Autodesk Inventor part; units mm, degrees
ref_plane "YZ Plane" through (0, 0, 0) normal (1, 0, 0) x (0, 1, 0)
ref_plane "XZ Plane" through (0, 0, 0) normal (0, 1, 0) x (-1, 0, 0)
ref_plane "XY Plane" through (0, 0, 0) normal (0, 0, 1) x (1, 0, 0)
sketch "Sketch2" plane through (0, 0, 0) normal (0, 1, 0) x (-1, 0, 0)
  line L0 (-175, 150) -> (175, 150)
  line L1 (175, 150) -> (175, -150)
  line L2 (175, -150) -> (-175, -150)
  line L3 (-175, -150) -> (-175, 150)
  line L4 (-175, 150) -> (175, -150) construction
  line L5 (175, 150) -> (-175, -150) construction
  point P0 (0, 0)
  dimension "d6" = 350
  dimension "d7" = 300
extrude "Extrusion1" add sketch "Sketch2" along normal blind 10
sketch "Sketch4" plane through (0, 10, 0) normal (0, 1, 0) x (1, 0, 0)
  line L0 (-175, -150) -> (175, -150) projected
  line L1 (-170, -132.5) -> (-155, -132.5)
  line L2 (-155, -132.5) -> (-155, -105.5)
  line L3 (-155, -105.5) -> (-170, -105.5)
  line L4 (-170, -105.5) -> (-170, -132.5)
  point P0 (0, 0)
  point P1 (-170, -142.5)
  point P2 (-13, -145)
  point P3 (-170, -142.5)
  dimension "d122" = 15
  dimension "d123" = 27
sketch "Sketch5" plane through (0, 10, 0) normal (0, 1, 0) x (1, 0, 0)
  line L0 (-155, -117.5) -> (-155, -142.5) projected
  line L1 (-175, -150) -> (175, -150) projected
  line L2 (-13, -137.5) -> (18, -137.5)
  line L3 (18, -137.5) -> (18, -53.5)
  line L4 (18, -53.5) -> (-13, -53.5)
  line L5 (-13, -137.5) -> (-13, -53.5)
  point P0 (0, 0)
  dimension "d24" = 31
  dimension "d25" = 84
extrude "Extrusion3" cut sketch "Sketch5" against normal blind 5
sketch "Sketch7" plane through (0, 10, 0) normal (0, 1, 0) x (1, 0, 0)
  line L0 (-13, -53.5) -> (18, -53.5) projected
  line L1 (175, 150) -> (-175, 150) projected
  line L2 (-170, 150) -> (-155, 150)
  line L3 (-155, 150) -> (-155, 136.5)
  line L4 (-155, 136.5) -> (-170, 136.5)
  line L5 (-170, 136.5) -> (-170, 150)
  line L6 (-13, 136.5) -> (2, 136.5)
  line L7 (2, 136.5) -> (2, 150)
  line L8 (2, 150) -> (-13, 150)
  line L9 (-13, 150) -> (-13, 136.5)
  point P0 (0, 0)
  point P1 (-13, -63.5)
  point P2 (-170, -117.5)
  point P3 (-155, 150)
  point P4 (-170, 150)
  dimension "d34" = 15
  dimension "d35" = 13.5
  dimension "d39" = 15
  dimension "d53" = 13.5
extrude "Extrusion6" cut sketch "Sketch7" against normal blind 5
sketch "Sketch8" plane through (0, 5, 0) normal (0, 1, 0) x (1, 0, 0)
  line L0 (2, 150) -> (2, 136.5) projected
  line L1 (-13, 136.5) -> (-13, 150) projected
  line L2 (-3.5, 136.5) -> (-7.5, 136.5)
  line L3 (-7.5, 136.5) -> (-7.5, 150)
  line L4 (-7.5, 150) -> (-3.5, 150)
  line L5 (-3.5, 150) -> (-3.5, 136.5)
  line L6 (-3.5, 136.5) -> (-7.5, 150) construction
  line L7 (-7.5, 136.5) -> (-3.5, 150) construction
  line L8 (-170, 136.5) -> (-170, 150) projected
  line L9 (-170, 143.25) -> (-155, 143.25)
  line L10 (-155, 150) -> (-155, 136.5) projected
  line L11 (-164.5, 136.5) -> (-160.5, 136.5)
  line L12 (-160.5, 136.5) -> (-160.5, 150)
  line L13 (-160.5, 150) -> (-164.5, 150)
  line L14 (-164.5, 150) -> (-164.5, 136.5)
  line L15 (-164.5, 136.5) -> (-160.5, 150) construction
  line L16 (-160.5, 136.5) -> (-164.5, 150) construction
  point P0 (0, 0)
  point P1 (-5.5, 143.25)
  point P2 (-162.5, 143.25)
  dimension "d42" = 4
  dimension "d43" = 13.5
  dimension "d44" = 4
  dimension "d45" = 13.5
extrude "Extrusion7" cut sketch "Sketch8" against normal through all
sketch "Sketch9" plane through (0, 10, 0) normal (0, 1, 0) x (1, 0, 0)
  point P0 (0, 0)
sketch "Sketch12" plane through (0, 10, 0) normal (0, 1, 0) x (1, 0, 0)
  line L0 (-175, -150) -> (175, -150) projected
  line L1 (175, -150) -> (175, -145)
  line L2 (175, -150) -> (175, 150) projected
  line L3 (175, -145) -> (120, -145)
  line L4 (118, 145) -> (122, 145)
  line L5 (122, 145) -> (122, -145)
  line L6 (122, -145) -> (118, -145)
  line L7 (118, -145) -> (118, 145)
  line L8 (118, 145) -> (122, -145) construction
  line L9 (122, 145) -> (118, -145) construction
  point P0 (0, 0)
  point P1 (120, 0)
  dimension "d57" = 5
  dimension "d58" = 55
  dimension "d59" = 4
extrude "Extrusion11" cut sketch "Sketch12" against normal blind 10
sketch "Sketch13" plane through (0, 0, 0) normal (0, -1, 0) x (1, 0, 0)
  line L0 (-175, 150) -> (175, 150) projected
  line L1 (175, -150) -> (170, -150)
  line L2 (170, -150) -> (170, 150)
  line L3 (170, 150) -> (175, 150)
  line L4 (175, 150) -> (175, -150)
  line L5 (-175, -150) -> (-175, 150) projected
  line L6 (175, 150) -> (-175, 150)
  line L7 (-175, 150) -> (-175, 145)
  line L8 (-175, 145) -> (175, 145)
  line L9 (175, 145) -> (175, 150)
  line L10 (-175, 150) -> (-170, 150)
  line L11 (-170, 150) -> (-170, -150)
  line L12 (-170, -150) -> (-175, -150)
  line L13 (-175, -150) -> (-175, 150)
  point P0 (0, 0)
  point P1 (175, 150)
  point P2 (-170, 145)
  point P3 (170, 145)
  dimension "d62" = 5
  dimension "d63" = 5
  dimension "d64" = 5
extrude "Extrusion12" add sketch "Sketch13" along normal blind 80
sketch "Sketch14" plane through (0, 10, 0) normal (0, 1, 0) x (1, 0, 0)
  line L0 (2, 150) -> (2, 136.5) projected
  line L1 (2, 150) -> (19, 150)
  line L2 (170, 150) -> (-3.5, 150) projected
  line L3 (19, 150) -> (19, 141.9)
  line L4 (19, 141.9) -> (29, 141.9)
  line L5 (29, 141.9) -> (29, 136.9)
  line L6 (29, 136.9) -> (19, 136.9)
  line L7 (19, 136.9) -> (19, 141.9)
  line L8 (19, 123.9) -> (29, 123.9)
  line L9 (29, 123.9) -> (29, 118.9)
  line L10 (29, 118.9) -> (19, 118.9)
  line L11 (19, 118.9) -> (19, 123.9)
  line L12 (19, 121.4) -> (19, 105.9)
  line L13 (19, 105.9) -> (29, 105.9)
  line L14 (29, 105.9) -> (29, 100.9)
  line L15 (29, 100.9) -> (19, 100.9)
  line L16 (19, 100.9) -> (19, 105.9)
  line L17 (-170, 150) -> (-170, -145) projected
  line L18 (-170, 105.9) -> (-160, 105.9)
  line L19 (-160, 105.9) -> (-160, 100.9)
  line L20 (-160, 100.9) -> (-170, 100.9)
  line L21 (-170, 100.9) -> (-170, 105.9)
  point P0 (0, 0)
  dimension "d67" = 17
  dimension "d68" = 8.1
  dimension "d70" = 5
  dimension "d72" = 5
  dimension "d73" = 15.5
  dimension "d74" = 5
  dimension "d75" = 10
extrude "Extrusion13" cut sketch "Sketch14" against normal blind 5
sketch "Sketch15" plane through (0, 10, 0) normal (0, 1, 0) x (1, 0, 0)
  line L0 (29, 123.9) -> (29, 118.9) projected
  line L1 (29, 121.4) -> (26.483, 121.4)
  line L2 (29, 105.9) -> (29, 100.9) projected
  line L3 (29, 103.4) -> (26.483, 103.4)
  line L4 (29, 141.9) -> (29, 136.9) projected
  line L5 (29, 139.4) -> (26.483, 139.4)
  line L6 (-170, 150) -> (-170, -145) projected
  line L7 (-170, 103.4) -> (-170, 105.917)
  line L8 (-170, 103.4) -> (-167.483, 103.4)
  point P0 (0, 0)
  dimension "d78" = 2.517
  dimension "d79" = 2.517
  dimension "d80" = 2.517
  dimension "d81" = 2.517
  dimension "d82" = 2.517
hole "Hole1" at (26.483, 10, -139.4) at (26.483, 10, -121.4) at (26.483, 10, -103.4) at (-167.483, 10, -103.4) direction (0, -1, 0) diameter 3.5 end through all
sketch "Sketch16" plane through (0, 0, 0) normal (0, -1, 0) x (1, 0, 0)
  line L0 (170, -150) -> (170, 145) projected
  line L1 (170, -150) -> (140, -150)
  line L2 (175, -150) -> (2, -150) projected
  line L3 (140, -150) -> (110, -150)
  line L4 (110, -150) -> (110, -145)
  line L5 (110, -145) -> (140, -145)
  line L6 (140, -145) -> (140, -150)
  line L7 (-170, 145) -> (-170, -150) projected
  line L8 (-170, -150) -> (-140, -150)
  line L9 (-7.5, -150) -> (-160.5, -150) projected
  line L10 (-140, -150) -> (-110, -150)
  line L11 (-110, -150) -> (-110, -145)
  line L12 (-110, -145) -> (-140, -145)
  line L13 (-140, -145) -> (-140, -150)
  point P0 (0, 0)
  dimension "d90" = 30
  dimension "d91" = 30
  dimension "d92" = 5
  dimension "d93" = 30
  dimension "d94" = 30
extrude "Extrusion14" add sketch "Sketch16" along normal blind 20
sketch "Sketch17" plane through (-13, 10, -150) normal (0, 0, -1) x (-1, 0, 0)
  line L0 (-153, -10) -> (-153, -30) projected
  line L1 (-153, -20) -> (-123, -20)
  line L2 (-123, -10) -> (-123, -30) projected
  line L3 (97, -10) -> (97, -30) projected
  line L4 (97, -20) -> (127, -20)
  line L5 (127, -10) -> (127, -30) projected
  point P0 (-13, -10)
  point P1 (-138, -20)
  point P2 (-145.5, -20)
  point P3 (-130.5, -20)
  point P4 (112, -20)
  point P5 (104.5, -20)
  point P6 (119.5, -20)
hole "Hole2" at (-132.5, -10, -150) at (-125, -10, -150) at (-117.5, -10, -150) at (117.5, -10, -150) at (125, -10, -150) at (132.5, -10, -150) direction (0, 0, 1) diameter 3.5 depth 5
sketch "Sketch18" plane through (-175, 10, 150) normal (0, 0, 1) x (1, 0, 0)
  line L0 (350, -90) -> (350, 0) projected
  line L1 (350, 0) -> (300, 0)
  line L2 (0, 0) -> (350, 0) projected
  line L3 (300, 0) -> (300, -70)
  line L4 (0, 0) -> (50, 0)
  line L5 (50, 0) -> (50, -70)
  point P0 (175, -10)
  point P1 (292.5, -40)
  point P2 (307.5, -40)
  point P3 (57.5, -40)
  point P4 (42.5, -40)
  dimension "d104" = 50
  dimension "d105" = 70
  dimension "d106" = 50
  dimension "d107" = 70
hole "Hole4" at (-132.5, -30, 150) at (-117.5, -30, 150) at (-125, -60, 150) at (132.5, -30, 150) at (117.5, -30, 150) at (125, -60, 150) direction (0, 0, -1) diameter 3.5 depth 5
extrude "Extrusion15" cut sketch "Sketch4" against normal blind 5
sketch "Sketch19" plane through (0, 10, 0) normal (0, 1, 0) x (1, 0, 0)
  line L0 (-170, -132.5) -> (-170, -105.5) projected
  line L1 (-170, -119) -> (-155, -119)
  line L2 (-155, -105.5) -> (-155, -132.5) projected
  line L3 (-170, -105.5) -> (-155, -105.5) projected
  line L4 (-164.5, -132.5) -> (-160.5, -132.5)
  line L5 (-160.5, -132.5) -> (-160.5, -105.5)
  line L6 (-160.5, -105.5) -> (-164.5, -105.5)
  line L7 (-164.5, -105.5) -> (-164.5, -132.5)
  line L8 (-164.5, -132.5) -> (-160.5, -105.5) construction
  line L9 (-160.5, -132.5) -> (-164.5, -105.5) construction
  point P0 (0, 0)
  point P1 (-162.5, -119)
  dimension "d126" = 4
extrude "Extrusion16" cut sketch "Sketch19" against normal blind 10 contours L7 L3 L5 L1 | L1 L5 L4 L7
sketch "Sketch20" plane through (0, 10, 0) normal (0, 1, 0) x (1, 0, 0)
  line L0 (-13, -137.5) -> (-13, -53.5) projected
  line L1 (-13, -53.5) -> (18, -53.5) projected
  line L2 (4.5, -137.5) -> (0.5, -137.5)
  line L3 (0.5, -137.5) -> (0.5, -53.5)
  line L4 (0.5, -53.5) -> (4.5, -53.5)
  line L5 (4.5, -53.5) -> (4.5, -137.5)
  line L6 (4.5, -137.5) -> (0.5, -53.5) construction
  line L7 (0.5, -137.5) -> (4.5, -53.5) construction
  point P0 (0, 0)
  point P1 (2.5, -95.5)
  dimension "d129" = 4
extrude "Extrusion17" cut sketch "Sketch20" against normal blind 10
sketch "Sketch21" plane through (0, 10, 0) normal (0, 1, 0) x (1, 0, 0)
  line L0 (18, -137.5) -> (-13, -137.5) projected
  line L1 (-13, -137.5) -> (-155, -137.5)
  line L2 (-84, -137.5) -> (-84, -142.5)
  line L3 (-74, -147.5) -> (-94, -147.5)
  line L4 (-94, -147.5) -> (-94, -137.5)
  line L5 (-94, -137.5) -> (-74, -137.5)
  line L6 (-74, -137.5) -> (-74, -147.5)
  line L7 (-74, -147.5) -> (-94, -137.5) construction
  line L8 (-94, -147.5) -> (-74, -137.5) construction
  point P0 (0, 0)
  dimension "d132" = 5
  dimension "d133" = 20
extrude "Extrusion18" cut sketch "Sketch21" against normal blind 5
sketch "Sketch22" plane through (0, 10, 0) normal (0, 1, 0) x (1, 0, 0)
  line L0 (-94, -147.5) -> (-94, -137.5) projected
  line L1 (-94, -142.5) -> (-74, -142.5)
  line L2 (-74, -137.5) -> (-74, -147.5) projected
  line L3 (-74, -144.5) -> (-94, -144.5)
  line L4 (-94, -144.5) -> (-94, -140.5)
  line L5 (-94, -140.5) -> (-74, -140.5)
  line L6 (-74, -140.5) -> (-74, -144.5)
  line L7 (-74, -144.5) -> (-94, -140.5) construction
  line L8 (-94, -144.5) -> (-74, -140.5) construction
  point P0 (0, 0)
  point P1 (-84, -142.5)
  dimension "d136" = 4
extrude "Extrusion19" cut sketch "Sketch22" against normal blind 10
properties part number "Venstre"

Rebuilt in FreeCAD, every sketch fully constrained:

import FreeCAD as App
import Part
import Sketcher

V = App.Vector
Q = App.Units.Quantity

doc = App.newDocument("Part")
body = doc.addObject("PartDesign::Body", "Body")

# Sketch on XZ plane
sketch1 = body.newObject("Sketcher::SketchObject", "Sketch")
sketch1.AttachmentSupport = (doc.getObject("XZ_Plane"), [""])
sketch1.MapMode = "FlatFace"
sketch1.addGeometry(Part.LineSegment(V(-175, 150, 0), V(175, 150, 0)), False)
sketch1.addGeometry(Part.LineSegment(V(175, 150, 0), V(175, -150, 0)), False)
sketch1.addGeometry(Part.LineSegment(V(175, -150, 0), V(-175, -150, 0)), False)
sketch1.addGeometry(Part.LineSegment(V(-175, -150, 0), V(-175, 150, 0)), False)
sketch1.addConstraint(Sketcher.Constraint("Coincident", 0, 2, 1, 1))
sketch1.addConstraint(Sketcher.Constraint("Coincident", 1, 2, 2, 1))
sketch1.addConstraint(Sketcher.Constraint("Coincident", 2, 2, 3, 1))
sketch1.addConstraint(Sketcher.Constraint("Coincident", 3, 2, 0, 1))
sketch1.addConstraint(Sketcher.Constraint("Horizontal", 0))
sketch1.addConstraint(Sketcher.Constraint("Vertical", 1))
sketch1.addConstraint(Sketcher.Constraint("Horizontal", 2))
sketch1.addConstraint(Sketcher.Constraint("Vertical", 3))
sketch1.addConstraint(Sketcher.Constraint("Symmetric", 0, 2, 2, 2, -1, 1))
sketch1.addConstraint(Sketcher.Constraint("DistanceX", 0, 1, 0, 2, Q("350 mm")))
sketch1.addConstraint(Sketcher.Constraint("DistanceY", 1, 2, 1, 1, Q("300 mm")))
pad1 = body.newObject("PartDesign::Pad", "Pad")
pad1.Profile = sketch1
pad1.Length = 10
pad1.Reversed = True

# Sketch on XZ plane
sketch2 = body.newObject("Sketcher::SketchObject", "Sketch001")
sketch2.AttachmentSupport = (doc.getObject("XZ_Plane"), [""])
sketch2.MapMode = "FlatFace"
sketch2.AttachmentOffset = App.Placement(V(0, 0, -10), App.Rotation())
sketch2.addGeometry(Part.LineSegment(V(-13, 54, 0), V(-13, 138, 0)), False)
sketch2.addGeometry(Part.LineSegment(V(-13, 138, 0), V(18, 138, 0)), False)
sketch2.addGeometry(Part.LineSegment(V(18, 138, 0), V(18, 54, 0)), False)
sketch2.addGeometry(Part.LineSegment(V(18, 54, 0), V(-13, 54, 0)), False)
sketch2.addConstraint(Sketcher.Constraint("Coincident", 0, 2, 1, 1))
sketch2.addConstraint(Sketcher.Constraint("Coincident", 1, 2, 2, 1))
sketch2.addConstraint(Sketcher.Constraint("Coincident", 2, 2, 3, 1))
sketch2.addConstraint(Sketcher.Constraint("Coincident", 3, 2, 0, 1))
sketch2.addConstraint(Sketcher.Constraint("Vertical", 0))
sketch2.addConstraint(Sketcher.Constraint("Horizontal", 1))
sketch2.addConstraint(Sketcher.Constraint("Vertical", 2))
sketch2.addConstraint(Sketcher.Constraint("Horizontal", 3))
sketch2.addConstraint(Sketcher.Constraint("DistanceX", 1, 1, 1, 2, Q("31 mm")))
sketch2.addConstraint(Sketcher.Constraint("DistanceY", 0, 1, 0, 2, Q("84 mm")))
sketch2.addConstraint(Sketcher.Constraint("DistanceX", 0, 2, -1, 1, Q("13 mm")))
sketch2.addConstraint(Sketcher.Constraint("DistanceY", -1, 1, 0, 2, Q("137.5 mm")))
pocket1 = body.newObject("PartDesign::Pocket", "Pocket")
pocket1.Profile = sketch2
pocket1.Length = 5
pocket1.Reversed = True

# Sketch on XZ plane
sketch3 = body.newObject("Sketcher::SketchObject", "Sketch002")
sketch3.AttachmentSupport = (doc.getObject("XZ_Plane"), [""])
sketch3.MapMode = "FlatFace"
sketch3.AttachmentOffset = App.Placement(V(0, 0, -10), App.Rotation())
sketch3.addGeometry(Part.LineSegment(V(2, -136, 0), V(2, -150, 0)), False)
sketch3.addGeometry(Part.LineSegment(V(2, -150, 0), V(-13, -150, 0)), False)
sketch3.addGeometry(Part.LineSegment(V(-13, -150, 0), V(-13, -136, 0)), False)
sketch3.addGeometry(Part.LineSegment(V(-13, -136, 0), V(2, -136, 0)), False)
sketch3.addGeometry(Part.LineSegment(V(-155, -136, 0), V(-155, -150, 0)), False)
sketch3.addGeometry(Part.LineSegment(V(-155, -150, 0), V(-170, -150, 0)), False)
sketch3.addGeometry(Part.LineSegment(V(-170, -150, 0), V(-170, -136, 0)), False)
sketch3.addGeometry(Part.LineSegment(V(-170, -136, 0), V(-155, -136, 0)), False)
sketch3.addConstraint(Sketcher.Constraint("Coincident", 0, 2, 1, 1))
sketch3.addConstraint(Sketcher.Constraint("Coincident", 1, 2, 2, 1))
sketch3.addConstraint(Sketcher.Constraint("Coincident", 2, 2, 3, 1))
sketch3.addConstraint(Sketcher.Constraint("Coincident", 3, 2, 0, 1))
sketch3.addConstraint(Sketcher.Constraint("Coincident", 4, 2, 5, 1))
sketch3.addConstraint(Sketcher.Constraint("Coincident", 5, 2, 6, 1))
sketch3.addConstraint(Sketcher.Constraint("Coincident", 6, 2, 7, 1))
sketch3.addConstraint(Sketcher.Constraint("Coincident", 7, 2, 4, 1))
sketch3.addConstraint(Sketcher.Constraint("Vertical", 0))
sketch3.addConstraint(Sketcher.Constraint("Horizontal", 1))
sketch3.addConstraint(Sketcher.Constraint("Vertical", 2))
sketch3.addConstraint(Sketcher.Constraint("Horizontal", 3))
sketch3.addConstraint(Sketcher.Constraint("Vertical", 4))
sketch3.addConstraint(Sketcher.Constraint("Horizontal", 5))
sketch3.addConstraint(Sketcher.Constraint("Vertical", 6))
sketch3.addConstraint(Sketcher.Constraint("Horizontal", 7))
sketch3.addConstraint(Sketcher.Constraint("Horizontal", 1, 2, 4, 2))
sketch3.addConstraint(Sketcher.Constraint("Horizontal", 3, 2, 6, 2))
sketch3.addConstraint(Sketcher.Constraint("Equal", 3, 5))
sketch3.addConstraint(Sketcher.Constraint("DistanceX", 1, 2, 1, 1, Q("15 mm")))
sketch3.addConstraint(Sketcher.Constraint("DistanceY", 0, 2, 0, 1, Q("13.5 mm")))
sketch3.addConstraint(Sketcher.Constraint("DistanceX", -1, 1, 0, 2, Q("2 mm")))
sketch3.addConstraint(Sketcher.Constraint("DistanceY", 0, 2, -1, 1, Q("150 mm")))
sketch3.addConstraint(Sketcher.Constraint("DistanceX", 4, 2, -1, 1, Q("155 mm")))
pocket2 = body.newObject("PartDesign::Pocket", "Pocket001")
pocket2.Profile = sketch3
pocket2.Length = 5
pocket2.Reversed = True

# Sketch on XZ plane
sketch4 = body.newObject("Sketcher::SketchObject", "Sketch003")
sketch4.AttachmentSupport = (doc.getObject("XZ_Plane"), [""])
sketch4.MapMode = "FlatFace"
sketch4.AttachmentOffset = App.Placement(V(0, 0, -5), App.Rotation())
sketch4.addGeometry(Part.LineSegment(V(-7.5, -136.5, 0), V(-3.5, -136.5, 0)), False)
sketch4.addGeometry(Part.LineSegment(V(-3.5, -136.5, 0), V(-3.5, -150, 0)), False)
sketch4.addGeometry(Part.LineSegment(V(-3.5, -150, 0), V(-7.5, -150, 0)), False)
sketch4.addGeometry(Part.LineSegment(V(-7.5, -150, 0), V(-7.5, -136.5, 0)), False)
sketch4.addGeometry(Part.LineSegment(V(-164.5, -150, 0), V(-164.5, -136.5, 0)), False)
sketch4.addGeometry(Part.LineSegment(V(-164.5, -136.5, 0), V(-160.5, -136.5, 0)), False)
sketch4.addGeometry(Part.LineSegment(V(-160.5, -136.5, 0), V(-160.5, -150, 0)), False)
sketch4.addGeometry(Part.LineSegment(V(-160.5, -150, 0), V(-164.5, -150, 0)), False)
sketch4.addConstraint(Sketcher.Constraint("Coincident", 0, 2, 1, 1))
sketch4.addConstraint(Sketcher.Constraint("Coincident", 1, 2, 2, 1))
sketch4.addConstraint(Sketcher.Constraint("Coincident", 2, 2, 3, 1))
sketch4.addConstraint(Sketcher.Constraint("Coincident", 3, 2, 0, 1))
sketch4.addConstraint(Sketcher.Constraint("Coincident", 4, 2, 5, 1))
sketch4.addConstraint(Sketcher.Constraint("Coincident", 5, 2, 6, 1))
sketch4.addConstraint(Sketcher.Constraint("Coincident", 6, 2, 7, 1))
sketch4.addConstraint(Sketcher.Constraint("Coincident", 7, 2, 4, 1))
sketch4.addConstraint(Sketcher.Constraint("Horizontal", 0))
sketch4.addConstraint(Sketcher.Constraint("Vertical", 1))
sketch4.addConstraint(Sketcher.Constraint("Horizontal", 2))
sketch4.addConstraint(Sketcher.Constraint("Vertical", 3))
sketch4.addConstraint(Sketcher.Constraint("Vertical", 4))
sketch4.addConstraint(Sketcher.Constraint("Horizontal", 5))
sketch4.addConstraint(Sketcher.Constraint("Vertical", 6))
sketch4.addConstraint(Sketcher.Constraint("Horizontal", 7))
sketch4.addConstraint(Sketcher.Constraint("Horizontal", 3, 2, 4, 2))
sketch4.addConstraint(Sketcher.Constraint("Horizontal", 2, 2, 6, 2))
sketch4.addConstraint(Sketcher.Constraint("Equal", 2, 5))
sketch4.addConstraint(Sketcher.Constraint("DistanceX", 0, 1, 0, 2, Q("4 mm")))
sketch4.addConstraint(Sketcher.Constraint("DistanceY", 1, 2, 1, 1, Q("13.5 mm")))
sketch4.addConstraint(Sketcher.Constraint("DistanceY", 1, 2, -1, 1, Q("150 mm")))
sketch4.addConstraint(Sketcher.Constraint("DistanceX", 4, 2, 3, 2, Q("157 mm")))
sketch4.addConstraint(Sketcher.Constraint("DistanceX", 0, 2, -1, 1, Q("3.5 mm")))
pocket3 = body.newObject("PartDesign::Pocket", "Pocket002")
pocket3.Profile = sketch4
pocket3.Type = "ThroughAll"
pocket3.Reversed = True

# Sketch on XZ plane
sketch5 = body.newObject("Sketcher::SketchObject", "Sketch004")
sketch5.AttachmentSupport = (doc.getObject("XZ_Plane"), [""])
sketch5.MapMode = "FlatFace"
sketch5.AttachmentOffset = App.Placement(V(0, 0, -10), App.Rotation())
sketch5.addGeometry(Part.LineSegment(V(118, 145, 0), V(122, 145, 0)), False)
sketch5.addGeometry(Part.LineSegment(V(122, 145, 0), V(122, -145, 0)), False)
sketch5.addGeometry(Part.LineSegment(V(122, -145, 0), V(118, -145, 0)), False)
sketch5.addGeometry(Part.LineSegment(V(118, -145, 0), V(118, 145, 0)), False)
sketch5.addConstraint(Sketcher.Constraint("Coincident", 0, 2, 1, 1))
sketch5.addConstraint(Sketcher.Constraint("Coincident", 1, 2, 2, 1))
sketch5.addConstraint(Sketcher.Constraint("Coincident", 2, 2, 3, 1))
sketch5.addConstraint(Sketcher.Constraint("Coincident", 3, 2, 0, 1))
sketch5.addConstraint(Sketcher.Constraint("Horizontal", 0))
sketch5.addConstraint(Sketcher.Constraint("Vertical", 1))
sketch5.addConstraint(Sketcher.Constraint("Horizontal", 2))
sketch5.addConstraint(Sketcher.Constraint("Vertical", 3))
sketch5.addConstraint(Sketcher.Constraint("DistanceX", 0, 1, 0, 2, Q("4 mm")))
sketch5.addConstraint(Sketcher.Constraint("DistanceY", 1, 2, 1, 1, Q("290 mm")))
sketch5.addConstraint(Sketcher.Constraint("DistanceX", -1, 1, 0, 2, Q("122 mm")))
sketch5.addConstraint(Sketcher.Constraint("DistanceY", -1, 1, 0, 2, Q("145 mm")))
pocket4 = body.newObject("PartDesign::Pocket", "Pocket003")
pocket4.Profile = sketch5
pocket4.Length = 10
pocket4.Reversed = True

# Sketch on XZ plane
sketch6 = body.newObject("Sketcher::SketchObject", "Sketch005")
sketch6.AttachmentSupport = (doc.getObject("XZ_Plane"), [""])
sketch6.MapMode = "FlatFace"
sketch6.addGeometry(Part.LineSegment(V(-175, 150, 0), V(-175, -150, 0)), False)
sketch6.addGeometry(Part.LineSegment(V(-175, -150, 0), V(-170, -150, 0)), False)
sketch6.addGeometry(Part.LineSegment(V(-170, -150, 0), V(-170, 145, 0)), False)
sketch6.addGeometry(Part.LineSegment(V(-170, 145, 0), V(170, 145, 0)), False)
sketch6.addGeometry(Part.LineSegment(V(170, 145, 0), V(170, -150, 0)), False)
sketch6.addGeometry(Part.LineSegment(V(170, -150, 0), V(175, -150, 0)), False)
sketch6.addGeometry(Part.LineSegment(V(175, -150, 0), V(175, 150, 0)), False)
sketch6.addGeometry(Part.LineSegment(V(175, 150, 0), V(-175, 150, 0)), False)
sketch6.addConstraint(Sketcher.Constraint("Coincident", 0, 2, 1, 1))
sketch6.addConstraint(Sketcher.Constraint("Coincident", 1, 2, 2, 1))
sketch6.addConstraint(Sketcher.Constraint("Coincident", 2, 2, 3, 1))
sketch6.addConstraint(Sketcher.Constraint("Coincident", 3, 2, 4, 1))
sketch6.addConstraint(Sketcher.Constraint("Coincident", 4, 2, 5, 1))
sketch6.addConstraint(Sketcher.Constraint("Coincident", 5, 2, 6, 1))
sketch6.addConstraint(Sketcher.Constraint("Coincident", 6, 2, 7, 1))
sketch6.addConstraint(Sketcher.Constraint("Coincident", 7, 2, 0, 1))
sketch6.addConstraint(Sketcher.Constraint("Vertical", 0))
sketch6.addConstraint(Sketcher.Constraint("Horizontal", 1))
sketch6.addConstraint(Sketcher.Constraint("Vertical", 2))
sketch6.addConstraint(Sketcher.Constraint("Horizontal", 3))
sketch6.addConstraint(Sketcher.Constraint("Vertical", 4))
sketch6.addConstraint(Sketcher.Constraint("Horizontal", 5))
sketch6.addConstraint(Sketcher.Constraint("Vertical", 6))
sketch6.addConstraint(Sketcher.Constraint("Horizontal", 7))
sketch6.addConstraint(Sketcher.Constraint("Symmetric", 0, 2, 6, 2, -1, 1))
sketch6.addConstraint(Sketcher.Constraint("Symmetric", 1, 2, 4, 2, -2))
sketch6.addConstraint(Sketcher.Constraint("DistanceX", 1, 1, 1, 2, Q("5 mm")))
sketch6.addConstraint(Sketcher.Constraint("DistanceY", 3, 2, 6, 2, Q("5 mm")))
sketch6.addConstraint(Sketcher.Constraint("DistanceX", 3, 1, 3, 2, Q("340 mm")))
sketch6.addConstraint(Sketcher.Constraint("DistanceY", 0, 2, 0, 1, Q("300 mm")))
pad2 = body.newObject("PartDesign::Pad", "Pad001")
pad2.Profile = sketch6
pad2.Length = 80

# Sketch on XZ plane
sketch7 = body.newObject("Sketcher::SketchObject", "Sketch006")
sketch7.AttachmentSupport = (doc.getObject("XZ_Plane"), [""])
sketch7.MapMode = "FlatFace"
sketch7.AttachmentOffset = App.Placement(V(0, 0, -10), App.Rotation())
sketch7.addGeometry(Part.LineSegment(V(29, -142, 0), V(19, -142, 0)), False)
sketch7.addGeometry(Part.LineSegment(V(19, -142, 0), V(19, -137, 0)), False)
sketch7.addGeometry(Part.LineSegment(V(19, -137, 0), V(29, -137, 0)), False)
sketch7.addGeometry(Part.LineSegment(V(29, -137, 0), V(29, -142, 0)), False)
sketch7.addGeometry(Part.LineSegment(V(29, -106, 0), V(19, -106, 0)), False)
sketch7.addGeometry(Part.LineSegment(V(19, -106, 0), V(19, -101, 0)), False)
sketch7.addGeometry(Part.LineSegment(V(19, -101, 0), V(29, -101, 0)), False)
sketch7.addGeometry(Part.LineSegment(V(29, -101, 0), V(29, -106, 0)), False)
sketch7.addGeometry(Part.LineSegment(V(29, -124, 0), V(19, -124, 0)), False)
sketch7.addGeometry(Part.LineSegment(V(19, -124, 0), V(19, -119, 0)), False)
sketch7.addGeometry(Part.LineSegment(V(19, -119, 0), V(29, -119, 0)), False)
sketch7.addGeometry(Part.LineSegment(V(29, -119, 0), V(29, -124, 0)), False)
sketch7.addGeometry(Part.LineSegment(V(-160, -106, 0), V(-170, -106, 0)), False)
sketch7.addGeometry(Part.LineSegment(V(-170, -106, 0), V(-170, -101, 0)), False)
sketch7.addGeometry(Part.LineSegment(V(-170, -101, 0), V(-160, -101, 0)), False)
sketch7.addGeometry(Part.LineSegment(V(-160, -101, 0), V(-160, -106, 0)), False)
sketch7.addConstraint(Sketcher.Constraint("Coincident", 0, 2, 1, 1))
sketch7.addConstraint(Sketcher.Constraint("Coincident", 1, 2, 2, 1))
sketch7.addConstraint(Sketcher.Constraint("Coincident", 2, 2, 3, 1))
sketch7.addConstraint(Sketcher.Constraint("Coincident", 3, 2, 0, 1))
sketch7.addConstraint(Sketcher.Constraint("Coincident", 4, 2, 5, 1))
sketch7.addConstraint(Sketcher.Constraint("Coincident", 5, 2, 6, 1))
sketch7.addConstraint(Sketcher.Constraint("Coincident", 6, 2, 7, 1))
sketch7.addConstraint(Sketcher.Constraint("Coincident", 7, 2, 4, 1))
sketch7.addConstraint(Sketcher.Constraint("Coincident", 8, 2, 9, 1))
sketch7.addConstraint(Sketcher.Constraint("Coincident", 9, 2, 10, 1))
sketch7.addConstraint(Sketcher.Constraint("Coincident", 10, 2, 11, 1))
sketch7.addConstraint(Sketcher.Constraint("Coincident", 11, 2, 8, 1))
sketch7.addConstraint(Sketcher.Constraint("Coincident", 12, 2, 13, 1))
sketch7.addConstraint(Sketcher.Constraint("Coincident", 13, 2, 14, 1))
sketch7.addConstraint(Sketcher.Constraint("Coincident", 14, 2, 15, 1))
sketch7.addConstraint(Sketcher.Constraint("Coincident", 15, 2, 12, 1))
sketch7.addConstraint(Sketcher.Constraint("Horizontal", 0))
sketch7.addConstraint(Sketcher.Constraint("Vertical", 1))
sketch7.addConstraint(Sketcher.Constraint("Horizontal", 2))
sketch7.addConstraint(Sketcher.Constraint("Vertical", 3))
sketch7.addConstraint(Sketcher.Constraint("Horizontal", 4))
sketch7.addConstraint(Sketcher.Constraint("Vertical", 5))
sketch7.addConstraint(Sketcher.Constraint("Horizontal", 6))
sketch7.addConstraint(Sketcher.Constraint("Vertical", 7))
sketch7.addConstraint(Sketcher.Constraint("Horizontal", 8))
sketch7.addConstraint(Sketcher.Constraint("Vertical", 9))
sketch7.addConstraint(Sketcher.Constraint("Horizontal", 10))
sketch7.addConstraint(Sketcher.Constraint("Vertical", 11))
sketch7.addConstraint(Sketcher.Constraint("Horizontal", 12))
sketch7.addConstraint(Sketcher.Constraint("Vertical", 13))
sketch7.addConstraint(Sketcher.Constraint("Horizontal", 14))
sketch7.addConstraint(Sketcher.Constraint("Vertical", 15))
sketch7.addConstraint(Sketcher.Constraint("Horizontal", 7, 2, 12, 2))
sketch7.addConstraint(Sketcher.Constraint("Horizontal", 6, 2, 13, 2))
sketch7.addConstraint(Sketcher.Constraint("Vertical", 1, 2, 4, 2))
sketch7.addConstraint(Sketcher.Constraint("Vertical", 3, 2, 6, 2))
sketch7.addConstraint(Sketcher.Constraint("Vertical", 5, 2, 8, 2))
sketch7.addConstraint(Sketcher.Constraint("Vertical", 7, 2, 10, 2))
sketch7.addConstraint(Sketcher.Constraint("Equal", 10, 12))
sketch7.addConstraint(Sketcher.Constraint("Equal", 3, 5))
sketch7.addConstraint(Sketcher.Constraint("Equal", 7, 9))
sketch7.addConstraint(Sketcher.Constraint("DistanceX", 0, 2, 0, 1, Q("10 mm")))
sketch7.addConstraint(Sketcher.Constraint("DistanceY", 1, 1, 1, 2, Q("5 mm")))
sketch7.addConstraint(Sketcher.Constraint("DistanceX", -1, 1, 0, 2, Q("19 mm")))
sketch7.addConstraint(Sketcher.Constraint("DistanceX", 12, 2, -1, 1, Q("170 mm")))
sketch7.addConstraint(Sketcher.Constraint("DistanceY", 1, 2, 4, 2, Q("31 mm")))
sketch7.addConstraint(Sketcher.Constraint("DistanceY", 1, 2, 8, 2, Q("13 mm")))
sketch7.addConstraint(Sketcher.Constraint("DistanceY", 0, 2, -1, 1, Q("141.9 mm")))
pocket5 = body.newObject("PartDesign::Pocket", "Pocket004")
pocket5.Profile = sketch7
pocket5.Length = 5
pocket5.Reversed = True

# Sketch on XZ plane
sketch8 = body.newObject("Sketcher::SketchObject", "Sketch007")
sketch8.AttachmentSupport = (doc.getObject("XZ_Plane"), [""])
sketch8.MapMode = "FlatFace"
sketch8.AttachmentOffset = App.Placement(V(0, 0, -10), App.Rotation())
sketch8.addGeometry(Part.Circle(V(26.5, -139.4, 0), V(0, 0, 1), 1.8), False)
sketch8.addGeometry(Part.Circle(V(26.5, -121.4, 0), V(0, 0, 1), 1.8), False)
sketch8.addGeometry(Part.Circle(V(26.5, -103.4, 0), V(0, 0, 1), 1.8), False)
sketch8.addGeometry(Part.Circle(V(-167.5, -103.4, 0), V(0, 0, 1), 1.8), False)
sketch8.addConstraint(Sketcher.Constraint("Equal", 0, 1))
sketch8.addConstraint(Sketcher.Constraint("Equal", 1, 2))
sketch8.addConstraint(Sketcher.Constraint("Equal", 2, 3))
sketch8.addConstraint(Sketcher.Constraint("Horizontal", 2, 3, 3, 3))
sketch8.addConstraint(Sketcher.Constraint("Vertical", 0, 3, 1, 3))
sketch8.addConstraint(Sketcher.Constraint("Vertical", 1, 3, 2, 3))
sketch8.addConstraint(Sketcher.Constraint("Diameter", 0, Q("3.5 mm")))
sketch8.addConstraint(Sketcher.Constraint("DistanceY", 0, 3, 1, 3, Q("18 mm")))
sketch8.addConstraint(Sketcher.Constraint("DistanceY", 1, 3, 2, 3, Q("18 mm")))
sketch8.addConstraint(Sketcher.Constraint("DistanceY", 0, 3, -1, 1, Q("139.4 mm")))
sketch8.addConstraint(Sketcher.Constraint("DistanceX", -1, 1, 0, 3, Q("26.483 mm")))
sketch8.addConstraint(Sketcher.Constraint("DistanceX", 3, 3, -1, 1, Q("167.483 mm")))
doc.recompute()
hole = body.newObject("PartDesign::Hole", "Hole")
hole.Profile = sketch8
hole.ThreadType = "None"
hole.Diameter = 3.5
hole.DepthType = "ThroughAll"
hole.Reversed = True

# Sketch on XZ plane
sketch9 = body.newObject("Sketcher::SketchObject", "Sketch008")
sketch9.AttachmentSupport = (doc.getObject("XZ_Plane"), [""])
sketch9.MapMode = "FlatFace"
sketch9.addGeometry(Part.LineSegment(V(110, -150, 0), V(140, -150, 0)), False)
sketch9.addGeometry(Part.LineSegment(V(140, -150, 0), V(140, -145, 0)), False)
sketch9.addGeometry(Part.LineSegment(V(140, -145, 0), V(110, -145, 0)), False)
sketch9.addGeometry(Part.LineSegment(V(110, -145, 0), V(110, -150, 0)), False)
sketch9.addGeometry(Part.LineSegment(V(-140, -150, 0), V(-110, -150, 0)), False)
sketch9.addGeometry(Part.LineSegment(V(-110, -150, 0), V(-110, -145, 0)), False)
sketch9.addGeometry(Part.LineSegment(V(-110, -145, 0), V(-140, -145, 0)), False)
sketch9.addGeometry(Part.LineSegment(V(-140, -145, 0), V(-140, -150, 0)), False)
sketch9.addConstraint(Sketcher.Constraint("Coincident", 0, 2, 1, 1))
sketch9.addConstraint(Sketcher.Constraint("Coincident", 1, 2, 2, 1))
sketch9.addConstraint(Sketcher.Constraint("Coincident", 2, 2, 3, 1))
sketch9.addConstraint(Sketcher.Constraint("Coincident", 3, 2, 0, 1))
sketch9.addConstraint(Sketcher.Constraint("Coincident", 4, 2, 5, 1))
sketch9.addConstraint(Sketcher.Constraint("Coincident", 5, 2, 6, 1))
sketch9.addConstraint(Sketcher.Constraint("Coincident", 6, 2, 7, 1))
sketch9.addConstraint(Sketcher.Constraint("Coincident", 7, 2, 4, 1))
sketch9.addConstraint(Sketcher.Constraint("Horizontal", 0))
sketch9.addConstraint(Sketcher.Constraint("Vertical", 1))
sketch9.addConstraint(Sketcher.Constraint("Horizontal", 2))
sketch9.addConstraint(Sketcher.Constraint("Vertical", 3))
sketch9.addConstraint(Sketcher.Constraint("Horizontal", 4))
sketch9.addConstraint(Sketcher.Constraint("Vertical", 5))
sketch9.addConstraint(Sketcher.Constraint("Horizontal", 6))
sketch9.addConstraint(Sketcher.Constraint("Vertical", 7))
sketch9.addConstraint(Sketcher.Constraint("Symmetric", 3, 2, 4, 2, -2))
sketch9.addConstraint(Sketcher.Constraint("Symmetric", 1, 2, 6, 2, -2))
sketch9.addConstraint(Sketcher.Constraint("DistanceX", 0, 1, 0, 2, Q("30 mm")))
sketch9.addConstraint(Sketcher.Constraint("DistanceY", 1, 1, 1, 2, Q("5 mm")))
sketch9.addConstraint(Sketcher.Constraint("DistanceX", -1, 1, 0, 2, Q("140 mm")))
sketch9.addConstraint(Sketcher.Constraint("DistanceY", 0, 2, -1, 1, Q("150 mm")))
pad3 = body.newObject("PartDesign::Pad", "Pad002")
pad3.Profile = sketch9
pad3.Length = 20

# Sketch on XY plane
sketch10 = body.newObject("Sketcher::SketchObject", "Sketch009")
sketch10.AttachmentSupport = (doc.getObject("XY_Plane"), [""])
sketch10.MapMode = "FlatFace"
sketch10.AttachmentOffset = App.Placement(V(0, 0, -150), App.Rotation())
sketch10.addGeometry(Part.Circle(V(-132.5, -10, 0), V(0, 0, 1), 1.8), False)
sketch10.addGeometry(Part.Circle(V(-125, -10, 0), V(0, 0, 1), 1.8), False)
sketch10.addGeometry(Part.Circle(V(-117.5, -10, 0), V(0, 0, 1), 1.8), False)
sketch10.addGeometry(Part.Circle(V(117.5, -10, 0), V(0, 0, 1), 1.8), False)
sketch10.addGeometry(Part.Circle(V(125, -10, 0), V(0, 0, 1), 1.8), False)
sketch10.addGeometry(Part.Circle(V(132.5, -10, 0), V(0, 0, 1), 1.8), False)
sketch10.addConstraint(Sketcher.Constraint("Equal", 0, 1))
sketch10.addConstraint(Sketcher.Constraint("Equal", 1, 2))
sketch10.addConstraint(Sketcher.Constraint("Equal", 2, 3))
sketch10.addConstraint(Sketcher.Constraint("Equal", 3, 4))
sketch10.addConstraint(Sketcher.Constraint("Equal", 4, 5))
sketch10.addConstraint(Sketcher.Constraint("Symmetric", 2, 3, 3, 3, -2))
sketch10.addConstraint(Sketcher.Constraint("Symmetric", 1, 3, 4, 3, -2))
sketch10.addConstraint(Sketcher.Constraint("Symmetric", 0, 3, 5, 3, -2))
sketch10.addConstraint(Sketcher.Constraint("Horizontal", 0, 3, 1, 3))
sketch10.addConstraint(Sketcher.Constraint("Horizontal", 1, 3, 2, 3))
sketch10.addConstraint(Sketcher.Constraint("Diameter", 0, Q("3.5 mm")))
sketch10.addConstraint(Sketcher.Constraint("DistanceY", 0, 3, -1, 1, Q("10 mm")))
sketch10.addConstraint(Sketcher.Constraint("DistanceX", 1, 3, -1, 1, Q("125 mm")))
sketch10.addConstraint(Sketcher.Constraint("DistanceX", 0, 3, 2, 3, Q("15 mm")))
sketch10.addConstraint(Sketcher.Constraint("DistanceX", 2, 3, 3, 3, Q("235 mm")))
doc.recompute()
hole2 = body.newObject("PartDesign::Hole", "Hole001")
hole2.Profile = sketch10
hole2.ThreadType = "None"
hole2.Diameter = 3.5
hole2.DepthType = "Dimension"
hole2.Depth = 5
hole2.DrillPoint = "Flat"
hole2.Reversed = True

# Sketch on XY plane
sketch11 = body.newObject("Sketcher::SketchObject", "Sketch010")
sketch11.AttachmentSupport = (doc.getObject("XY_Plane"), [""])
sketch11.MapMode = "FlatFace"
sketch11.AttachmentOffset = App.Placement(V(0, 0, 150), App.Rotation())
sketch11.addGeometry(Part.Circle(V(-132.5, -30, 0), V(0, 0, 1), 1.8), False)
sketch11.addGeometry(Part.Circle(V(-117.5, -30, 0), V(0, 0, 1), 1.8), False)
sketch11.addGeometry(Part.Circle(V(-125, -60, 0), V(0, 0, 1), 1.8), False)
sketch11.addGeometry(Part.Circle(V(132.5, -30, 0), V(0, 0, 1), 1.8), False)
sketch11.addGeometry(Part.Circle(V(117.5, -30, 0), V(0, 0, 1), 1.8), False)
sketch11.addGeometry(Part.Circle(V(125, -60, 0), V(0, 0, 1), 1.8), False)
sketch11.addConstraint(Sketcher.Constraint("Equal", 0, 1))
sketch11.addConstraint(Sketcher.Constraint("Equal", 1, 2))
sketch11.addConstraint(Sketcher.Constraint("Equal", 2, 3))
sketch11.addConstraint(Sketcher.Constraint("Equal", 3, 4))
sketch11.addConstraint(Sketcher.Constraint("Equal", 4, 5))
sketch11.addConstraint(Sketcher.Constraint("Symmetric", 0, 3, 3, 3, -2))
sketch11.addConstraint(Sketcher.Constraint("Symmetric", 1, 3, 4, 3, -2))
sketch11.addConstraint(Sketcher.Constraint("Symmetric", 2, 3, 5, 3, -2))
sketch11.addConstraint(Sketcher.Constraint("Horizontal", 0, 3, 1, 3))
sketch11.addConstraint(Sketcher.Constraint("Diameter", 0, Q("3.5 mm")))
sketch11.addConstraint(Sketcher.Constraint("DistanceY", 0, 3, -1, 1, Q("30 mm")))
sketch11.addConstraint(Sketcher.Constraint("DistanceX", 2, 3, -1, 1, Q("125 mm")))
sketch11.addConstraint(Sketcher.Constraint("DistanceY", 2, 3, -1, 1, Q("60 mm")))
sketch11.addConstraint(Sketcher.Constraint("DistanceX", 0, 3, 1, 3, Q("15 mm")))
sketch11.addConstraint(Sketcher.Constraint("DistanceX", 1, 3, 3, 3, Q("250 mm")))
doc.recompute()
hole3 = body.newObject("PartDesign::Hole", "Hole002")
hole3.Profile = sketch11
hole3.ThreadType = "None"
hole3.Diameter = 3.5
hole3.DepthType = "Dimension"
hole3.Depth = 5
hole3.DrillPoint = "Flat"

# Sketch on XZ plane
sketch12 = body.newObject("Sketcher::SketchObject", "Sketch011")
sketch12.AttachmentSupport = (doc.getObject("XZ_Plane"), [""])
sketch12.MapMode = "FlatFace"
sketch12.AttachmentOffset = App.Placement(V(0, 0, -10), App.Rotation())
sketch12.addGeometry(Part.LineSegment(V(-170, 106, 0), V(-170, 132, 0)), False)
sketch12.addGeometry(Part.LineSegment(V(-170, 132, 0), V(-155, 132, 0)), False)
sketch12.addGeometry(Part.LineSegment(V(-155, 132, 0), V(-155, 106, 0)), False)
sketch12.addGeometry(Part.LineSegment(V(-155, 106, 0), V(-170, 106, 0)), False)
sketch12.addConstraint(Sketcher.Constraint("Coincident", 0, 2, 1, 1))
sketch12.addConstraint(Sketcher.Constraint("Coincident", 1, 2, 2, 1))
sketch12.addConstraint(Sketcher.Constraint("Coincident", 2, 2, 3, 1))
sketch12.addConstraint(Sketcher.Constraint("Coincident", 3, 2, 0, 1))
sketch12.addConstraint(Sketcher.Constraint("Vertical", 0))
sketch12.addConstraint(Sketcher.Constraint("Horizontal", 1))
sketch12.addConstraint(Sketcher.Constraint("Vertical", 2))
sketch12.addConstraint(Sketcher.Constraint("Horizontal", 3))
sketch12.addConstraint(Sketcher.Constraint("DistanceX", 1, 1, 1, 2, Q("15 mm")))
sketch12.addConstraint(Sketcher.Constraint("DistanceY", 0, 1, 0, 2, Q("27 mm")))
sketch12.addConstraint(Sketcher.Constraint("DistanceX", 0, 2, -1, 1, Q("170 mm")))
sketch12.addConstraint(Sketcher.Constraint("DistanceY", -1, 1, 0, 2, Q("132.5 mm")))
pocket6 = body.newObject("PartDesign::Pocket", "Pocket005")
pocket6.Profile = sketch12
pocket6.Length = 5
pocket6.Reversed = True

# Sketch on XZ plane
sketch13 = body.newObject("Sketcher::SketchObject", "Sketch012")
sketch13.AttachmentSupport = (doc.getObject("XZ_Plane"), [""])
sketch13.MapMode = "FlatFace"
sketch13.AttachmentOffset = App.Placement(V(0, 0, -10), App.Rotation())
sketch13.addGeometry(Part.LineSegment(V(-164.5, 105.5, 0), V(-164.5, 132.5, 0)), False)
sketch13.addGeometry(Part.LineSegment(V(-164.5, 132.5, 0), V(-160.5, 132.5, 0)), False)
sketch13.addGeometry(Part.LineSegment(V(-160.5, 132.5, 0), V(-160.5, 105.5, 0)), False)
sketch13.addGeometry(Part.LineSegment(V(-160.5, 105.5, 0), V(-164.5, 105.5, 0)), False)
sketch13.addConstraint(Sketcher.Constraint("Coincident", 0, 2, 1, 1))
sketch13.addConstraint(Sketcher.Constraint("Coincident", 1, 2, 2, 1))
sketch13.addConstraint(Sketcher.Constraint("Coincident", 2, 2, 3, 1))
sketch13.addConstraint(Sketcher.Constraint("Coincident", 3, 2, 0, 1))
sketch13.addConstraint(Sketcher.Constraint("Vertical", 0))
sketch13.addConstraint(Sketcher.Constraint("Horizontal", 1))
sketch13.addConstraint(Sketcher.Constraint("Vertical", 2))
sketch13.addConstraint(Sketcher.Constraint("Horizontal", 3))
sketch13.addConstraint(Sketcher.Constraint("DistanceX", 1, 1, 1, 2, Q("4 mm")))
sketch13.addConstraint(Sketcher.Constraint("DistanceY", 0, 1, 0, 2, Q("27 mm")))
sketch13.addConstraint(Sketcher.Constraint("DistanceX", 0, 2, -1, 1, Q("164.5 mm")))
sketch13.addConstraint(Sketcher.Constraint("DistanceY", -1, 1, 0, 2, Q("132.5 mm")))
pocket7 = body.newObject("PartDesign::Pocket", "Pocket006")
pocket7.Profile = sketch13
pocket7.Length = 10
pocket7.Reversed = True

# Sketch on XZ plane
sketch14 = body.newObject("Sketcher::SketchObject", "Sketch013")
sketch14.AttachmentSupport = (doc.getObject("XZ_Plane"), [""])
sketch14.MapMode = "FlatFace"
sketch14.AttachmentOffset = App.Placement(V(0, 0, -10), App.Rotation())
sketch14.addGeometry(Part.LineSegment(V(4.5, 53.5, 0), V(0.5, 53.5, 0)), False)
sketch14.addGeometry(Part.LineSegment(V(0.5, 53.5, 0), V(0.5, 137.5, 0)), False)
sketch14.addGeometry(Part.LineSegment(V(0.5, 137.5, 0), V(4.5, 137.5, 0)), False)
sketch14.addGeometry(Part.LineSegment(V(4.5, 137.5, 0), V(4.5, 53.5, 0)), False)
sketch14.addConstraint(Sketcher.Constraint("Coincident", 0, 2, 1, 1))
sketch14.addConstraint(Sketcher.Constraint("Coincident", 1, 2, 2, 1))
sketch14.addConstraint(Sketcher.Constraint("Coincident", 2, 2, 3, 1))
sketch14.addConstraint(Sketcher.Constraint("Coincident", 3, 2, 0, 1))
sketch14.addConstraint(Sketcher.Constraint("Horizontal", 0))
sketch14.addConstraint(Sketcher.Constraint("Vertical", 1))
sketch14.addConstraint(Sketcher.Constraint("Horizontal", 2))
sketch14.addConstraint(Sketcher.Constraint("Vertical", 3))
sketch14.addConstraint(Sketcher.Constraint("DistanceX", 0, 2, 0, 1, Q("4 mm")))
sketch14.addConstraint(Sketcher.Constraint("DistanceY", 1, 1, 1, 2, Q("84 mm")))
sketch14.addConstraint(Sketcher.Constraint("DistanceX", -1, 1, 0, 2, Q("0.5 mm")))
sketch14.addConstraint(Sketcher.Constraint("DistanceY", -1, 1, 0, 2, Q("53.5 mm")))
pocket8 = body.newObject("PartDesign::Pocket", "Pocket007")
pocket8.Profile = sketch14
pocket8.Length = 10
pocket8.Reversed = True

# Sketch on XZ plane
sketch15 = body.newObject("Sketcher::SketchObject", "Sketch014")
sketch15.AttachmentSupport = (doc.getObject("XZ_Plane"), [""])
sketch15.MapMode = "FlatFace"
sketch15.AttachmentOffset = App.Placement(V(0, 0, -10), App.Rotation())
sketch15.addGeometry(Part.LineSegment(V(-74, 148, 0), V(-74, 138, 0)), False)
sketch15.addGeometry(Part.LineSegment(V(-74, 138, 0), V(-94, 138, 0)), False)
sketch15.addGeometry(Part.LineSegment(V(-94, 138, 0), V(-94, 148, 0)), False)
sketch15.addGeometry(Part.LineSegment(V(-94, 148, 0), V(-74, 148, 0)), False)
sketch15.addConstraint(Sketcher.Constraint("Coincident", 0, 2, 1, 1))
sketch15.addConstraint(Sketcher.Constraint("Coincident", 1, 2, 2, 1))
sketch15.addConstraint(Sketcher.Constraint("Coincident", 2, 2, 3, 1))
sketch15.addConstraint(Sketcher.Constraint("Coincident", 3, 2, 0, 1))
sketch15.addConstraint(Sketcher.Constraint("Vertical", 0))
sketch15.addConstraint(Sketcher.Constraint("Horizontal", 1))
sketch15.addConstraint(Sketcher.Constraint("Vertical", 2))
sketch15.addConstraint(Sketcher.Constraint("Horizontal", 3))
sketch15.addConstraint(Sketcher.Constraint("DistanceX", 1, 2, 1, 1, Q("20 mm")))
sketch15.addConstraint(Sketcher.Constraint("DistanceY", 0, 2, 0, 1, Q("10 mm")))
sketch15.addConstraint(Sketcher.Constraint("DistanceX", 0, 2, -1, 1, Q("74 mm")))
sketch15.addConstraint(Sketcher.Constraint("DistanceY", -1, 1, 0, 2, Q("137.5 mm")))
pocket9 = body.newObject("PartDesign::Pocket", "Pocket008")
pocket9.Profile = sketch15
pocket9.Length = 5
pocket9.Reversed = True

# Sketch on XZ plane
sketch16 = body.newObject("Sketcher::SketchObject", "Sketch015")
sketch16.AttachmentSupport = (doc.getObject("XZ_Plane"), [""])
sketch16.MapMode = "FlatFace"
sketch16.AttachmentOffset = App.Placement(V(0, 0, -10), App.Rotation())
sketch16.addGeometry(Part.LineSegment(V(-94, 144.5, 0), V(-74, 144.5, 0)), False)
sketch16.addGeometry(Part.LineSegment(V(-74, 144.5, 0), V(-74, 140.5, 0)), False)
sketch16.addGeometry(Part.LineSegment(V(-74, 140.5, 0), V(-94, 140.5, 0)), False)
sketch16.addGeometry(Part.LineSegment(V(-94, 140.5, 0), V(-94, 144.5, 0)), False)
sketch16.addConstraint(Sketcher.Constraint("Coincident", 0, 2, 1, 1))
sketch16.addConstraint(Sketcher.Constraint("Coincident", 1, 2, 2, 1))
sketch16.addConstraint(Sketcher.Constraint("Coincident", 2, 2, 3, 1))
sketch16.addConstraint(Sketcher.Constraint("Coincident", 3, 2, 0, 1))
sketch16.addConstraint(Sketcher.Constraint("Horizontal", 0))
sketch16.addConstraint(Sketcher.Constraint("Vertical", 1))
sketch16.addConstraint(Sketcher.Constraint("Horizontal", 2))
sketch16.addConstraint(Sketcher.Constraint("Vertical", 3))
sketch16.addConstraint(Sketcher.Constraint("DistanceY", 1, 2, 1, 1, Q("4 mm")))
sketch16.addConstraint(Sketcher.Constraint("DistanceX", 0, 1, 0, 2, Q("20 mm")))
sketch16.addConstraint(Sketcher.Constraint("DistanceX", 0, 2, -1, 1, Q("74 mm")))
sketch16.addConstraint(Sketcher.Constraint("DistanceY", -1, 1, 0, 2, Q("144.5 mm")))
pocket10 = body.newObject("PartDesign::Pocket", "Pocket009")
pocket10.Profile = sketch16
pocket10.Length = 10
pocket10.Reversed = True

doc.recompute()
